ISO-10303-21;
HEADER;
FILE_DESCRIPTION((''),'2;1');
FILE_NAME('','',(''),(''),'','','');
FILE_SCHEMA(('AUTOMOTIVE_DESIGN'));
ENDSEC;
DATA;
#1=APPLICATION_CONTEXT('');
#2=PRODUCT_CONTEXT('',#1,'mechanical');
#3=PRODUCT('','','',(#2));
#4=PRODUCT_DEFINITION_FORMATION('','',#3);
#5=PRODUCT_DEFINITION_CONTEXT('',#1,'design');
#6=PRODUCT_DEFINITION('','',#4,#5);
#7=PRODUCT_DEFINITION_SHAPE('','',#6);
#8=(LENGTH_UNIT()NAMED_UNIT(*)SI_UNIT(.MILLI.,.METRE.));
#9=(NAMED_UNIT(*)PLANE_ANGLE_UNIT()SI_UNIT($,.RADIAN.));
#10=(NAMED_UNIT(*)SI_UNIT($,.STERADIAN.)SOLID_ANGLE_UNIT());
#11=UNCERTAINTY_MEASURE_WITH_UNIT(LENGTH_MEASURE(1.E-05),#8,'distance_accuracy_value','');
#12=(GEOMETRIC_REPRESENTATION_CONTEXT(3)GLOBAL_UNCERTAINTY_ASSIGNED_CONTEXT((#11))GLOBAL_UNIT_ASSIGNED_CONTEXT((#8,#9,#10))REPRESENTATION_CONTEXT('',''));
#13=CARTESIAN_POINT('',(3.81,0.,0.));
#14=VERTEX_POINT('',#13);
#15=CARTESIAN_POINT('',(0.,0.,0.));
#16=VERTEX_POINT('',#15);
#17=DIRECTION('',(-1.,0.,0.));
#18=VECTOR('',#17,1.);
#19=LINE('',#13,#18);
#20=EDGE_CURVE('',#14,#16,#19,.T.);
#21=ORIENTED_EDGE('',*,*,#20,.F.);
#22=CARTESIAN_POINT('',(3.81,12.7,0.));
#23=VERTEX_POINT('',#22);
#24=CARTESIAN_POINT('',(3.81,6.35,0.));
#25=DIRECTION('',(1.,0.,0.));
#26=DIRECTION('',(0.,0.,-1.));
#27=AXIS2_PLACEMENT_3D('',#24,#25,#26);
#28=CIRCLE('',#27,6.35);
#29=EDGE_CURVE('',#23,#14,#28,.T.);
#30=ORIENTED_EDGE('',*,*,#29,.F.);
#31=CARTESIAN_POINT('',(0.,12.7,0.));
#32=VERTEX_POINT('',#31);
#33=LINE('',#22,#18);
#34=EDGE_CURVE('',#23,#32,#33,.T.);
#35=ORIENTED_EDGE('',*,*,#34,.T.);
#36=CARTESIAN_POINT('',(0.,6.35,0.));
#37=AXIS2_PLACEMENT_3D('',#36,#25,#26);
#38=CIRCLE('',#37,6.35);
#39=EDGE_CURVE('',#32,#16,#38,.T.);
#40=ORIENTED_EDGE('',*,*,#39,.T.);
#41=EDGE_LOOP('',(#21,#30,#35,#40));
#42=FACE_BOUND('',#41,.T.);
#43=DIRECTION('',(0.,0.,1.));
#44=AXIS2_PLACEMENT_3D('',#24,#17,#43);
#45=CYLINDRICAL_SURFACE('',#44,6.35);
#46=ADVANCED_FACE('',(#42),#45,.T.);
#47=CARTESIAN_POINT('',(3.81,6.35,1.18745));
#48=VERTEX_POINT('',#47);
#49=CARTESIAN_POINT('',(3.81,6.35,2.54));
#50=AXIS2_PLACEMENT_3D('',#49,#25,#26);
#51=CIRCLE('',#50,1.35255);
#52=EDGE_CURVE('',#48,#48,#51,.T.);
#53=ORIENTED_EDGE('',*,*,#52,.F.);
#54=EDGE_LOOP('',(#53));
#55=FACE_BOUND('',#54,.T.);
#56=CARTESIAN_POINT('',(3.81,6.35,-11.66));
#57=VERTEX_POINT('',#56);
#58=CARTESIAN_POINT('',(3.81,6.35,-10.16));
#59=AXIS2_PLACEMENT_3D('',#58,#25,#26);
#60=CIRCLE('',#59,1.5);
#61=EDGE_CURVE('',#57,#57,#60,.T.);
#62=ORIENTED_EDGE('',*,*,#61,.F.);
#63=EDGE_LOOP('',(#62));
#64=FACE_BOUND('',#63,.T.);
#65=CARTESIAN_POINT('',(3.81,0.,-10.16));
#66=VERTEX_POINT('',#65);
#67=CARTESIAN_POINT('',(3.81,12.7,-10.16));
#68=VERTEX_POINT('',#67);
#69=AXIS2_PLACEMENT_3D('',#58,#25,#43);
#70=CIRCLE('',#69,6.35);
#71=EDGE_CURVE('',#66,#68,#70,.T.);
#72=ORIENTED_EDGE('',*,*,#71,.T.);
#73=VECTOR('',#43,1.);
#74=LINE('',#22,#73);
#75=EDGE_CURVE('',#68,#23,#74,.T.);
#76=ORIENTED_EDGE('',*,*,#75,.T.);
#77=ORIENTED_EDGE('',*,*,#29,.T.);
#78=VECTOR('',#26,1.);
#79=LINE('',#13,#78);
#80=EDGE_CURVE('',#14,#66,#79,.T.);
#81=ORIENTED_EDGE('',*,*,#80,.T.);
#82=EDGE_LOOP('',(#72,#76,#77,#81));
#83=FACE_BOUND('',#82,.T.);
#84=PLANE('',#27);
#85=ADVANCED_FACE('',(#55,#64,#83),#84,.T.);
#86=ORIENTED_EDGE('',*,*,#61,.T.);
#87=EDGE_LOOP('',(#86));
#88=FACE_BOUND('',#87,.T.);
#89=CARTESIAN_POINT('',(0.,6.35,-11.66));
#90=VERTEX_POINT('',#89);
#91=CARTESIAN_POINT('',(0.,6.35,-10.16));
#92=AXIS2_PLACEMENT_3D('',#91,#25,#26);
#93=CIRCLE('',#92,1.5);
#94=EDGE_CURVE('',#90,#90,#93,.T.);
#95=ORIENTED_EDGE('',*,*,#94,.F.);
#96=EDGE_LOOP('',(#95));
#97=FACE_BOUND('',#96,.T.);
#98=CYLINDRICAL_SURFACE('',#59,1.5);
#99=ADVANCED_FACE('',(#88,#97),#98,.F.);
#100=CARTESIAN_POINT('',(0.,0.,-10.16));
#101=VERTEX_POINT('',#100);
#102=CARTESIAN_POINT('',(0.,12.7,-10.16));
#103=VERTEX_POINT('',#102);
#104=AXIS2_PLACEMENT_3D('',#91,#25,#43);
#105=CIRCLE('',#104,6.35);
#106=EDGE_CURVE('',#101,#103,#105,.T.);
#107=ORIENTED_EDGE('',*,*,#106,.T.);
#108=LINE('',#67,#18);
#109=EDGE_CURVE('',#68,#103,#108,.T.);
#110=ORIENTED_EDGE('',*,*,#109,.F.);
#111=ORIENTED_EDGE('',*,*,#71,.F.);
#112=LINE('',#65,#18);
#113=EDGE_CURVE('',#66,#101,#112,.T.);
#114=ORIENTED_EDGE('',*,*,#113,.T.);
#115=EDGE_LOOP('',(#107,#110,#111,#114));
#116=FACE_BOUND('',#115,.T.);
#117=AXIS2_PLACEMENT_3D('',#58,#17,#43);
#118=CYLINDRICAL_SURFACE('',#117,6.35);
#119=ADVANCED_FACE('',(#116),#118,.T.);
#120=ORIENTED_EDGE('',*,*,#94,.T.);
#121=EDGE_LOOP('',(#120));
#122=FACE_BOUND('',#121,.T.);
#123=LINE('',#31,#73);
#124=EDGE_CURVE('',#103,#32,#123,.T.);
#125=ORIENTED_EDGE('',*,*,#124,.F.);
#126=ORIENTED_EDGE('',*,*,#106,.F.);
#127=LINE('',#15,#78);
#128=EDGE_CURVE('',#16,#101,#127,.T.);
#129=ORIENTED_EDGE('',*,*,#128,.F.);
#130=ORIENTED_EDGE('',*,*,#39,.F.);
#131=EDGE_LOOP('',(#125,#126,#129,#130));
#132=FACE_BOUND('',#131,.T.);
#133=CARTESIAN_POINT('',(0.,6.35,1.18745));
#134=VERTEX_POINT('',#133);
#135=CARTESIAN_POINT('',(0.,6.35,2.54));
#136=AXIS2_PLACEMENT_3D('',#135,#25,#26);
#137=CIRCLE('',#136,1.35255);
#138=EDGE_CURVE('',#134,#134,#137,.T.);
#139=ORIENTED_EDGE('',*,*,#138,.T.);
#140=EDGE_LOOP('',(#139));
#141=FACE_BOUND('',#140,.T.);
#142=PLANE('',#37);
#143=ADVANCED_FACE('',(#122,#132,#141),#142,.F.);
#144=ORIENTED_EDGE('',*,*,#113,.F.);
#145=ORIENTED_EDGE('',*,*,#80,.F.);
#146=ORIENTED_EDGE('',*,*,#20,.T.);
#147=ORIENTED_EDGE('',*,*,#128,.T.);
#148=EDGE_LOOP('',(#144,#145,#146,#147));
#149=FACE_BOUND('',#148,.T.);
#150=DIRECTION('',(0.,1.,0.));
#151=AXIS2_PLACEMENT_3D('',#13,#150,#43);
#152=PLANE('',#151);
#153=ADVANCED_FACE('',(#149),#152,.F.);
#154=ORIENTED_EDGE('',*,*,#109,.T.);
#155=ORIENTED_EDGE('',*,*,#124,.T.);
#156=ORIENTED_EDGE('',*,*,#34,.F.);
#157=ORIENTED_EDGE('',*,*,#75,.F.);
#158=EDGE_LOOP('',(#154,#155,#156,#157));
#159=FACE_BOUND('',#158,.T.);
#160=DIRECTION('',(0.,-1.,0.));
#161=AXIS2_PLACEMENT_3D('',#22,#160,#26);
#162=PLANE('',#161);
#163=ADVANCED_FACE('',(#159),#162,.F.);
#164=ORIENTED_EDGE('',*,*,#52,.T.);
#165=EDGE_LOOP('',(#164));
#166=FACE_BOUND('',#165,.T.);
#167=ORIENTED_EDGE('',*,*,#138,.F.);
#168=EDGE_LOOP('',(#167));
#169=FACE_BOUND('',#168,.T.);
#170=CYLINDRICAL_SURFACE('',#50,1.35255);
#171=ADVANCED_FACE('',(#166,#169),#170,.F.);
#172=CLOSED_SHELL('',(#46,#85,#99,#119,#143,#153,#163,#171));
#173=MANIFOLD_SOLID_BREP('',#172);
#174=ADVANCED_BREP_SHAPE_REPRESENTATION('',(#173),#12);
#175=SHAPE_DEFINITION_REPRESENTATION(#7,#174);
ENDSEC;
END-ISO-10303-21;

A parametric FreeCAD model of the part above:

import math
import FreeCAD as App
import Part
import Sketcher

V = App.Vector
Q = App.Units.Quantity

doc = App.newDocument("Part")
body = doc.addObject("PartDesign::Body", "Body")

sketch1 = body.newObject("Sketcher::SketchObject", "Sketch")
sketch1.AttachmentSupport = (doc.getObject("YZ_Plane"), [""])
sketch1.MapMode = "FlatFace"
sketch1.addGeometry([
    Part.LineSegment(V(0, 0, 0), V(0, -10, 0)),
    Part.ArcOfCircle(Part.Circle(V(6, -10, 0), V(0, 0, 1), 6), math.radians(180), math.radians(360)),
    Part.LineSegment(V(13, -10, 0), V(13, 0, 0)),
    Part.ArcOfCircle(Part.Circle(V(6, 0, 0), V(0, 0, 1), 6), math.radians(0), math.radians(180)),
], False)
sketch1.addConstraint([
    Sketcher.Constraint("Tangent", 0, 2, 1, 1),
    Sketcher.Constraint("Tangent", 1, 2, 2, 1),
    Sketcher.Constraint("Tangent", 2, 2, 3, 1),
    Sketcher.Constraint("Tangent", 3, 2, 0, 1),
    Sketcher.Constraint("Vertical", 0),
    Sketcher.Constraint("Vertical", 2),
    Sketcher.Constraint("Coincident", 3, 2, -1, 1),
    Sketcher.Constraint("Radius", 1, Q("0.25 in")),
    Sketcher.Constraint("DistanceY", 0, 2, 0, 1, Q("0.4 in")),
])
pad1 = body.newObject("PartDesign::Pad", "Pad")
pad1.Profile = sketch1
pad1.Length = Q("0.15 in")

sketch2 = body.newObject("Sketcher::SketchObject", "Sketch001")
sketch2.AttachmentSupport = (doc.getObject("YZ_Plane"), [""])
sketch2.MapMode = "FlatFace"
sketch2.AttachmentOffset = App.Placement(V(0, 0, 0.15 * 25.4), App.Rotation())
sketch2.addGeometry(Part.Circle(V(6.3, 2.5, 0), V(0, 0, 1), 1.4), False)
sketch2.addConstraint([
    Sketcher.Constraint("Diameter", 0, Q("0.1065 in")),
    Sketcher.Constraint("DistanceY", -1, 1, 0, 3, Q("0.1 in")),
    Sketcher.Constraint("DistanceX", -1, 1, 0, 3, Q("0.25 in")),
])
doc.recompute()
hole = body.newObject("PartDesign::Hole", "Hole")
hole.Profile = sketch2
hole.ThreadType = "None"
hole.Diameter = Q("0.1065 in")
hole.DepthType = "ThroughAll"

sketch3 = body.newObject("Sketcher::SketchObject", "Sketch002")
sketch3.AttachmentSupport = (doc.getObject("YZ_Plane"), [""])
sketch3.MapMode = "FlatFace"
sketch3.AttachmentOffset = App.Placement(V(0, 0, 0.15 * 25.4), App.Rotation())
sketch3.addGeometry(Part.Circle(V(6.3, -10.2, 0), V(0, 0, 1), 1.5), False)
sketch3.addConstraint([
    Sketcher.Constraint("DistanceY", 0, 3, -1, 1, Q("0.4 in")),
    Sketcher.Constraint("Diameter", 0, Q("3 mm")),
    Sketcher.Constraint("DistanceX", -1, 1, 0, 3, Q("0.25 in")),
])
doc.recompute()
hole2 = body.newObject("PartDesign::Hole", "Hole001")
hole2.Profile = sketch3
hole2.ThreadType = "None"
hole2.Diameter = 3
hole2.DepthType = "ThroughAll"

doc.recompute()
